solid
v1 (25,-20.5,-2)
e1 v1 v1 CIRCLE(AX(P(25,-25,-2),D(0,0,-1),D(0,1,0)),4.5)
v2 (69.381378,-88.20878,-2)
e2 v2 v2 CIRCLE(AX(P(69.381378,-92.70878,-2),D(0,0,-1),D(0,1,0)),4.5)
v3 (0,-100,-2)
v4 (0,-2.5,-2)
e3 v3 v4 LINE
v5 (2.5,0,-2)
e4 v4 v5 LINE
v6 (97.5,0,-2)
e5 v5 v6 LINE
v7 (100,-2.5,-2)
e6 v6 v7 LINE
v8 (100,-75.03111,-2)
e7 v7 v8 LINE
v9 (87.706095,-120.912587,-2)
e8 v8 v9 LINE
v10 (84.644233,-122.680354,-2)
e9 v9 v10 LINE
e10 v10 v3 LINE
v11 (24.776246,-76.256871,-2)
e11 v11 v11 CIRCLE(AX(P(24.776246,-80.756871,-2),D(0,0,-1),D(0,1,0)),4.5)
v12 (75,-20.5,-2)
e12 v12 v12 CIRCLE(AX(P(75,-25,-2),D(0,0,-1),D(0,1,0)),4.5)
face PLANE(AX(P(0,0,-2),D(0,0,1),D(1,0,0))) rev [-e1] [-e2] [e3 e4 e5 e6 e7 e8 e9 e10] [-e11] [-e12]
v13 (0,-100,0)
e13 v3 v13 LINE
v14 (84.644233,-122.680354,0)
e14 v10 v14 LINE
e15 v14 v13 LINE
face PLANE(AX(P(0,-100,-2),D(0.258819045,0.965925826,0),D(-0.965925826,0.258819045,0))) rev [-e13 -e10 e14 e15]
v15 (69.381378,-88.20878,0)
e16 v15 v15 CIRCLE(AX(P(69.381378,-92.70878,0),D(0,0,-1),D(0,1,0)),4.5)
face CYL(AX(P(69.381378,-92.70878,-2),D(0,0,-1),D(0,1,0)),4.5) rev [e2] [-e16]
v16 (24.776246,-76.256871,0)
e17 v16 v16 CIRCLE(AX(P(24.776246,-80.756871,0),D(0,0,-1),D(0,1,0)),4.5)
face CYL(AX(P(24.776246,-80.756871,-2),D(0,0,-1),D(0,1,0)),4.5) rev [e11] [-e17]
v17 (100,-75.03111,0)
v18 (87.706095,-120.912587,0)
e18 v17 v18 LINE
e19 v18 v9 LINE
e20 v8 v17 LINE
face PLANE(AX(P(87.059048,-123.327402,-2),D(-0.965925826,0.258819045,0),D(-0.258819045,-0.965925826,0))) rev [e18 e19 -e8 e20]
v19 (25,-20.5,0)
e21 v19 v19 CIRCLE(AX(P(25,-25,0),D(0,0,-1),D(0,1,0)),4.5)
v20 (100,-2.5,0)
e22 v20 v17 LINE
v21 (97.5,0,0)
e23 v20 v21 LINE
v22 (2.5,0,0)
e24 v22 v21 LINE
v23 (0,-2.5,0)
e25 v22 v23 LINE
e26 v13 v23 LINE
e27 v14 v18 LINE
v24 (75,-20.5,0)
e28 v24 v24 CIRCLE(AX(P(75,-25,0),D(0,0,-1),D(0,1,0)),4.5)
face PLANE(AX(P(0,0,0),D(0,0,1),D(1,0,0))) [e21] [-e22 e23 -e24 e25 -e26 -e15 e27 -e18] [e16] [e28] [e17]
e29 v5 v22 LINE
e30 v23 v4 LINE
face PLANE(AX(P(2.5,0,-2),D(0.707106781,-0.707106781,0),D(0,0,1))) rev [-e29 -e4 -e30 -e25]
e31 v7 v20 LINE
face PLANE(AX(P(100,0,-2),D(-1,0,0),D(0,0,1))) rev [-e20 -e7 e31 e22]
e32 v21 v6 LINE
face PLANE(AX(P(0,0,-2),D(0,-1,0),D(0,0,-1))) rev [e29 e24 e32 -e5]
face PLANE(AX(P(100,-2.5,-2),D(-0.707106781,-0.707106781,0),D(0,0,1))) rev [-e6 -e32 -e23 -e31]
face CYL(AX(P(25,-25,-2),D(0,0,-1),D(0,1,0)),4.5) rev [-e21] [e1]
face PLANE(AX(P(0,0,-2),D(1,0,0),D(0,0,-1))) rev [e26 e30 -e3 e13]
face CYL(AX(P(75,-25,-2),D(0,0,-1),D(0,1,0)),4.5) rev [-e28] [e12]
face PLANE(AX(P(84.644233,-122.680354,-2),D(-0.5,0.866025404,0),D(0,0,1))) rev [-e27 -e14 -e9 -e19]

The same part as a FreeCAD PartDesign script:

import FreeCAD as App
import Part
import Sketcher
from FreeCAD import Vector
Q = App.Units.Quantity


def edges_at(feature, points):
    """Names of the edges that pass closest to the given points."""
    edges = feature.Shape.Edges
    near = lambda p: min(range(len(edges)), key=lambda i: edges[i].distToShape(Part.Vertex(*p))[0])
    return sorted({f"Edge{near(p) + 1}" for p in points})


def add_polygon(sketch, points):
    """Adds a closed chain of lines whose ends are joined by coincident constraints."""
    first, n = sketch.GeometryCount, len(points)
    for a, b in zip(points, points[1:] + points[:1]):
        sketch.addGeometry(Part.LineSegment(App.Vector(*a, 0), App.Vector(*b, 0)), False)
    for i in range(n):
        sketch.addConstraint(Sketcher.Constraint("Coincident", first + i, 2, first + (i + 1) % n, 1))

doc = App.newDocument("Part")
body = doc.addObject("PartDesign::Body", "Body")

# Sketch on XY plane
sketch1 = body.newObject("Sketcher::SketchObject", "Sketch")
sketch1.AttachmentSupport = (doc.getObject("XY_Plane"), [""])
sketch1.MapMode = "FlatFace"
add_polygon(sketch1, [(0, 0), (100, 0), (100, -75.03111), (87.059048, -123.327402), (0, -100)])  # lines 0-4
sketch1.addConstraint([
    Sketcher.Constraint("Horizontal", 0),
    Sketcher.Constraint("Vertical", 1),
    Sketcher.Constraint("Vertical", 4),
    Sketcher.Constraint("Coincident", 4, 2, -1, 1),
    Sketcher.Constraint("Perpendicular", 2, 3),
    Sketcher.Constraint("Equal", 0, 4),
    Sketcher.Constraint("DistanceX", 0, 1, 0, 2, Q("100 mm")),
    Sketcher.Constraint("Angle", 2, Q("-105 deg")),
    Sketcher.Constraint("Distance", 2, Q("50 mm")),
])
pad1 = body.newObject("PartDesign::Pad", "Pad")
pad1.Profile = sketch1
pad1.Length = 2
pad1.Reversed = True

# Sketch on XY plane
sketch2 = body.newObject("Sketcher::SketchObject", "Sketch001")
sketch2.AttachmentSupport = (doc.getObject("XY_Plane"), [""])
sketch2.MapMode = "FlatFace"
sketch2.AttachmentOffset = App.Placement(Vector(0, 0, -2), App.Rotation())
sketch2.addGeometry([
    Part.Circle(Vector(75, -25, 0), Vector(0, 0, 1), 4.5),
    Part.Circle(Vector(24.776246, -80.756871, 0), Vector(0, 0, 1), 4.5),
    Part.Circle(Vector(69.381378, -92.70878, 0), Vector(0, 0, 1), 4.5),
    Part.Circle(Vector(25, -25, 0), Vector(0, 0, 1), 4.5),
], False)
sketch2.addConstraint([
    Sketcher.Constraint("Equal", 0, 1),
    Sketcher.Constraint("Equal", 1, 2),
    Sketcher.Constraint("Equal", 2, 3),
    Sketcher.Constraint("Horizontal", 0, 3, 3, 3),
    Sketcher.Constraint("Diameter", 0, Q("9 mm")),
    Sketcher.Constraint("DistanceX", -1, 1, 0, 3, Q("75 mm")),
    Sketcher.Constraint("DistanceY", 0, 3, -1, 1, Q("25 mm")),
    Sketcher.Constraint("DistanceX", -1, 1, 3, 3, Q("25 mm")),
    Sketcher.Constraint("DistanceY", 1, 3, -1, 1, Q("80.756871 mm")),
    Sketcher.Constraint("DistanceX", -1, 1, 2, 3, Q("69.381378 mm")),
    Sketcher.Constraint("DistanceY", 2, 3, -1, 1, Q("92.70878 mm")),
    Sketcher.Constraint("DistanceX", 1, 3, 2, 3, Q("44.605132 mm")),
])
doc.recompute()
hole = body.newObject("PartDesign::Hole", "Hole")
hole.Profile = sketch2
hole.ThreadType = "None"
hole.Diameter = 9
hole.DepthType = "ThroughAll"
hole.Reversed = True
doc.recompute()

chamfer = body.newObject("PartDesign::Chamfer", "Chamfer")
chamfer.Base = (hole, edges_at(hole, [(87.059, -123.327, -1), (100, 0, -1), (0, 0, -1)]))
chamfer.Size = 2.5

doc.recompute()
